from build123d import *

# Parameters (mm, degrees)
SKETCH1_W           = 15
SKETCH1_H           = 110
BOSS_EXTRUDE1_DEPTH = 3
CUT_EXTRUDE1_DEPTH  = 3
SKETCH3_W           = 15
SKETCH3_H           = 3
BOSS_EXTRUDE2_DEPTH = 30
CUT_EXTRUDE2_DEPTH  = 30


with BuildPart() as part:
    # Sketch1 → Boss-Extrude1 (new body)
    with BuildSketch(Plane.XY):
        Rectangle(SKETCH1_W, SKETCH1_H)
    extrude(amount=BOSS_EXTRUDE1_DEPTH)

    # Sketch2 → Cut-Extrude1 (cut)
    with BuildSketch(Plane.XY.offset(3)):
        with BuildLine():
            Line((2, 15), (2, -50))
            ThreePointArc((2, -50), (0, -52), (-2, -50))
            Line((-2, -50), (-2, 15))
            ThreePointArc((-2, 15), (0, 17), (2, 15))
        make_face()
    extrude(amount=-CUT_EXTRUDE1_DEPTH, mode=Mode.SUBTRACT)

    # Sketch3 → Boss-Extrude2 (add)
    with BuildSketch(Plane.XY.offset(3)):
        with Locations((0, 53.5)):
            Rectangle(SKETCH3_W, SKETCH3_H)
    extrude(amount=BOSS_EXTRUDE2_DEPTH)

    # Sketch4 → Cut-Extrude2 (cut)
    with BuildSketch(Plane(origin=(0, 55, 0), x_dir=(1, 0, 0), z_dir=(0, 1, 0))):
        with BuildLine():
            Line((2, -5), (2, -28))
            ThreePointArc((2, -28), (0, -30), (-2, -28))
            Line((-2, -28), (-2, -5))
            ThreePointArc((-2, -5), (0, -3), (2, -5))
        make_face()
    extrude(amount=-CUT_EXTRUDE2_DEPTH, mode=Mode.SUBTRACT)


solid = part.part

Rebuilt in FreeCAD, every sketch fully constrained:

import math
import FreeCAD as App
import Part
import Sketcher

doc = App.newDocument("Part")
params = doc.addObject("Spreadsheet::Sheet", "Params")
for row, (alias, value) in enumerate([
    ("sketch1_width", "15 mm"),
    ("sketch1_height", "110 mm"),
    ("pad1_length", "3 mm"),
    ("sketch2_radius", "2 mm"),
    ("sketch2_height", "65 mm"),
    ("pocket1_length", "3 mm"),
    ("sketch3_width", "15 mm"),
    ("sketch3_height", "3 mm"),
    ("pad2_length", "30 mm"),
    ("sketch4_radius", "2 mm"),
    ("sketch4_height", "23 mm"),
    ("pocket2_length", "30 mm"),
], start=1):
    params.set(f"A{row}", alias)
    params.set(f"B{row}", "=" + value)
    params.setAlias(f"B{row}", alias)

body = doc.addObject("PartDesign::Body", "Body")

# Sketch on XY plane
sketch1 = body.newObject("Sketcher::SketchObject", "Sketch")
sketch1.AttachmentSupport = (doc.getObject("XY_Plane"), [""])
sketch1.MapMode = "FlatFace"
sketch1.addGeometry([
    Part.LineSegment(App.Vector(-7.5, 55, 0), App.Vector(-7.5, -55, 0)),
    Part.LineSegment(App.Vector(-7.5, -55, 0), App.Vector(7.5, -55, 0)),
    Part.LineSegment(App.Vector(7.5, -55, 0), App.Vector(7.5, 55, 0)),
    Part.LineSegment(App.Vector(7.5, 55, 0), App.Vector(-7.5, 55, 0)),
], False)
sketch1.addConstraint([
    Sketcher.Constraint("Coincident", 0, 2, 1, 1),
    Sketcher.Constraint("Coincident", 1, 2, 2, 1),
    Sketcher.Constraint("Coincident", 2, 2, 3, 1),
    Sketcher.Constraint("Coincident", 3, 2, 0, 1),
    Sketcher.Constraint("Vertical", 0),
    Sketcher.Constraint("Horizontal", 1),
    Sketcher.Constraint("Vertical", 2),
    Sketcher.Constraint("Horizontal", 3),
    Sketcher.Constraint("Symmetric", 0, 2, 2, 2, -1, 1),
    Sketcher.Constraint("DistanceX", 1, 1, 1, 2, 15.0),
    Sketcher.Constraint("DistanceY", 0, 2, 0, 1, 110.0),
])
sketch1.setExpression("Constraints[9]", "Params.sketch1_width")
sketch1.setExpression("Constraints[10]", "Params.sketch1_height")
pad1 = body.newObject("PartDesign::Pad", "Pad")
pad1.Profile = sketch1
pad1.setExpression("Length", "Params.pad1_length")

# Sketch on XY plane
sketch2 = body.newObject("Sketcher::SketchObject", "Sketch001")
sketch2.AttachmentSupport = (doc.getObject("XY_Plane"), [""])
sketch2.MapMode = "FlatFace"
sketch2.AttachmentOffset = App.Placement(App.Vector(0, 0, 3), App.Rotation())
sketch2.addGeometry([
    Part.LineSegment(App.Vector(2, -50, 0), App.Vector(2, 15, 0)),
    Part.ArcOfCircle(Part.Circle(App.Vector(0, 15, 0), App.Vector(0, 0, 1), 2), math.radians(0), math.radians(180)),
    Part.LineSegment(App.Vector(-2, 15, 0), App.Vector(-2, -50, 0)),
    Part.ArcOfCircle(Part.Circle(App.Vector(0, -50, 0), App.Vector(0, 0, 1), 2), math.radians(180), math.radians(360)),
], False)
sketch2.addConstraint([
    Sketcher.Constraint("Tangent", 0, 2, 1, 1),
    Sketcher.Constraint("Tangent", 1, 2, 2, 1),
    Sketcher.Constraint("Tangent", 2, 2, 3, 1),
    Sketcher.Constraint("Tangent", 3, 2, 0, 1),
    Sketcher.Constraint("Vertical", 0),
    Sketcher.Constraint("Vertical", 2),
    Sketcher.Constraint("PointOnObject", 1, 3, -2),
    Sketcher.Constraint("Radius", 1, 2.0),
    Sketcher.Constraint("DistanceY", 0, 1, 0, 2, 65.0),
    Sketcher.Constraint("DistanceY", -1, 1, 1, 3, 15.0),
])
sketch2.setExpression("Constraints[7]", "Params.sketch2_radius")
sketch2.setExpression("Constraints[8]", "Params.sketch2_height")
pocket1 = body.newObject("PartDesign::Pocket", "Pocket")
pocket1.Profile = sketch2
pocket1.setExpression("Length", "Params.pocket1_length")

# Sketch on XY plane
sketch3 = body.newObject("Sketcher::SketchObject", "Sketch002")
sketch3.AttachmentSupport = (doc.getObject("XY_Plane"), [""])
sketch3.MapMode = "FlatFace"
sketch3.AttachmentOffset = App.Placement(App.Vector(0, 0, 3), App.Rotation())
sketch3.addGeometry([
    Part.LineSegment(App.Vector(-7.5, 55, 0), App.Vector(-7.5, 52, 0)),
    Part.LineSegment(App.Vector(-7.5, 52, 0), App.Vector(7.5, 52, 0)),
    Part.LineSegment(App.Vector(7.5, 52, 0), App.Vector(7.5, 55, 0)),
    Part.LineSegment(App.Vector(7.5, 55, 0), App.Vector(-7.5, 55, 0)),
], False)
sketch3.addConstraint([
    Sketcher.Constraint("Coincident", 0, 2, 1, 1),
    Sketcher.Constraint("Coincident", 1, 2, 2, 1),
    Sketcher.Constraint("Coincident", 2, 2, 3, 1),
    Sketcher.Constraint("Coincident", 3, 2, 0, 1),
    Sketcher.Constraint("Vertical", 0),
    Sketcher.Constraint("Horizontal", 1),
    Sketcher.Constraint("Vertical", 2),
    Sketcher.Constraint("Horizontal", 3),
    Sketcher.Constraint("DistanceX", 1, 1, 1, 2, 15.0),
    Sketcher.Constraint("DistanceY", 0, 2, 0, 1, 3.0),
    Sketcher.Constraint("DistanceY", -1, 1, 0, 2, 52.0),
    Sketcher.Constraint("DistanceX", 0, 2, -1, 1, 7.5),
])
sketch3.setExpression("Constraints[8]", "Params.sketch3_width")
sketch3.setExpression("Constraints[9]", "Params.sketch3_height")
pad2 = body.newObject("PartDesign::Pad", "Pad001")
pad2.Profile = sketch3
pad2.setExpression("Length", "Params.pad2_length")

# Sketch on XZ plane
sketch4 = body.newObject("Sketcher::SketchObject", "Sketch003")
sketch4.AttachmentSupport = (doc.getObject("XZ_Plane"), [""])
sketch4.MapMode = "FlatFace"
sketch4.AttachmentOffset = App.Placement(App.Vector(0, 0, -55), App.Rotation())
sketch4.addGeometry([
    Part.LineSegment(App.Vector(2, 28, 0), App.Vector(2, 5, 0)),
    Part.ArcOfCircle(Part.Circle(App.Vector(0, 5, 0), App.Vector(0, 0, 1), 2), math.radians(180), math.radians(360)),
    Part.LineSegment(App.Vector(-2, 5, 0), App.Vector(-2, 28, 0)),
    Part.ArcOfCircle(Part.Circle(App.Vector(0, 28, 0), App.Vector(0, 0, 1), 2), math.radians(0), math.radians(180)),
], False)
sketch4.addConstraint([
    Sketcher.Constraint("Tangent", 0, 2, 1, 2),
    Sketcher.Constraint("Tangent", 1, 1, 2, 1),
    Sketcher.Constraint("Tangent", 2, 2, 3, 2),
    Sketcher.Constraint("Tangent", 3, 1, 0, 1),
    Sketcher.Constraint("Vertical", 0),
    Sketcher.Constraint("Vertical", 2),
    Sketcher.Constraint("PointOnObject", 1, 3, -2),
    Sketcher.Constraint("Radius", 1, 2.0),
    Sketcher.Constraint("DistanceY", 0, 2, 0, 1, 23.0),
    Sketcher.Constraint("DistanceY", -1, 1, 1, 3, 5.0),
])
sketch4.setExpression("Constraints[7]", "Params.sketch4_radius")
sketch4.setExpression("Constraints[8]", "Params.sketch4_height")
pocket2 = body.newObject("PartDesign::Pocket", "Pocket001")
pocket2.Profile = sketch4
pocket2.setExpression("Length", "Params.pocket2_length")
pocket2.Reversed = True

doc.recompute()
